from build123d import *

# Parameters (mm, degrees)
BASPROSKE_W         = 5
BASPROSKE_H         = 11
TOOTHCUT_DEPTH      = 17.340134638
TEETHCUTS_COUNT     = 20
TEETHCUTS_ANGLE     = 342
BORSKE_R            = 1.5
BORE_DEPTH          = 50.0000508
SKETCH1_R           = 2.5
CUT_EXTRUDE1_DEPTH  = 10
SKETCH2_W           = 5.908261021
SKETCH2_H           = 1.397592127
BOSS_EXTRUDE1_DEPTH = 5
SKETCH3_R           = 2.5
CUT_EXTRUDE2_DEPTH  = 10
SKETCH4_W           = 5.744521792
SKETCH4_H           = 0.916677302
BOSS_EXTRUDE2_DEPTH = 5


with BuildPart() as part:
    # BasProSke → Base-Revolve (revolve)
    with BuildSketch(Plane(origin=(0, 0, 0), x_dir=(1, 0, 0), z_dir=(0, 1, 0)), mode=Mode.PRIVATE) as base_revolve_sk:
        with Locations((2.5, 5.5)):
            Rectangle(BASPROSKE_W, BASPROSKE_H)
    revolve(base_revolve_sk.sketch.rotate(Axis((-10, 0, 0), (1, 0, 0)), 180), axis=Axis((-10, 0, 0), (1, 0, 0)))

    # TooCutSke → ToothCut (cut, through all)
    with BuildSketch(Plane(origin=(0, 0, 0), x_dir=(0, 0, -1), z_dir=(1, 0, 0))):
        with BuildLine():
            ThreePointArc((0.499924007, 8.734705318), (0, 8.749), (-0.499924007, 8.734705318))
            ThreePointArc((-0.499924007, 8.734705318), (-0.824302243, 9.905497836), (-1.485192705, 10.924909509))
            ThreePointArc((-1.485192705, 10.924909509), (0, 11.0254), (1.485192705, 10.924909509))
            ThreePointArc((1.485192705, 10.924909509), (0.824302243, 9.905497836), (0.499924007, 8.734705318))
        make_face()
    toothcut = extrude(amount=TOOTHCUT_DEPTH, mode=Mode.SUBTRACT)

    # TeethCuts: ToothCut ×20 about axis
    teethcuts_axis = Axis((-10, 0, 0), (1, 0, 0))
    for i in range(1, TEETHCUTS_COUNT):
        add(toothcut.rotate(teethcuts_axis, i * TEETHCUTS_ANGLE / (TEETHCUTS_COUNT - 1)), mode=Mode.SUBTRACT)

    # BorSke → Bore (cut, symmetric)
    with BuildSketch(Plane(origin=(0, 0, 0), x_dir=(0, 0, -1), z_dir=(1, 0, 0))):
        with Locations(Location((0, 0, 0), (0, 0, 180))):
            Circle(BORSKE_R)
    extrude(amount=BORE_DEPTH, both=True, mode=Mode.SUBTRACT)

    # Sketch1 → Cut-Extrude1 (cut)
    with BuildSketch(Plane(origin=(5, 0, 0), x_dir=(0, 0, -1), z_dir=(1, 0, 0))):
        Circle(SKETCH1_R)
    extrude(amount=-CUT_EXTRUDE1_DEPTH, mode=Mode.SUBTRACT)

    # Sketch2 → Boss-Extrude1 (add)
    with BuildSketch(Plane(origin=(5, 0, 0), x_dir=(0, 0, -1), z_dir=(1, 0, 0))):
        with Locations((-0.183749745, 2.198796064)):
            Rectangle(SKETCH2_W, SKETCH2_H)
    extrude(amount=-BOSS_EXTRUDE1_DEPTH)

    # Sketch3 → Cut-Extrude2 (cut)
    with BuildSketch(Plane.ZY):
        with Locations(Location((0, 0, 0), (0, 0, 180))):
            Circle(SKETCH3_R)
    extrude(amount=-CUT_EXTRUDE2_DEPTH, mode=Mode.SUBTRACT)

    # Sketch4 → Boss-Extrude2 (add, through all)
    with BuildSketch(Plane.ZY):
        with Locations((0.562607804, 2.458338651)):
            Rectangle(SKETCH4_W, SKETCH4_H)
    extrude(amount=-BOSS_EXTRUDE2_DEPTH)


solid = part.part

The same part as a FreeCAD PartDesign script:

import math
import FreeCAD as App
import Part
import Sketcher
from FreeCAD import Vector

doc = App.newDocument("Part")
body = doc.addObject("PartDesign::Body", "Body")

# Sketch on XZ plane
sketch1 = doc.addObject("Sketcher::SketchObject", "Sketch")
body.addObject(sketch1)
sketch1.AttachmentSupport = (doc.XZ_Plane, [""])
sketch1.MapMode = "FlatFace"
sketch1.addGeometry([
    Part.LineSegment(Vector(0, -11, 0), Vector(0, 0, 0)),
    Part.LineSegment(Vector(0, 0, 0), Vector(5, 0, 0)),
    Part.LineSegment(Vector(5, 0, 0), Vector(5, -11, 0)),
    Part.LineSegment(Vector(5, -11, 0), Vector(0, -11, 0)),
], False)
sketch1.addConstraint([
    Sketcher.Constraint("Coincident", 0, 2, 1, 1),
    Sketcher.Constraint("Coincident", 1, 2, 2, 1),
    Sketcher.Constraint("Coincident", 2, 2, 3, 1),
    Sketcher.Constraint("Coincident", 3, 2, 0, 1),
    Sketcher.Constraint("Vertical", 0),
    Sketcher.Constraint("Horizontal", 1),
    Sketcher.Constraint("Vertical", 2),
    Sketcher.Constraint("Horizontal", 3),
    Sketcher.Constraint("Coincident", 0, 2, -1, 1),
    Sketcher.Constraint("DistanceX", 1, 1, 1, 2, 5.0),
    Sketcher.Constraint("DistanceY", 0, 1, 0, 2, 11.0),
])
revolution = doc.addObject("PartDesign::Revolution", "Revolution")
body.addObject(revolution)
revolution.Profile = sketch1
revolution.ReferenceAxis = (sketch1, ["H_Axis"])
revolution.Angle = 360

# Sketch on YZ plane
sketch2 = doc.addObject("Sketcher::SketchObject", "Sketch001")
body.addObject(sketch2)
sketch2.AttachmentSupport = (doc.YZ_Plane, [""])
sketch2.MapMode = "FlatFace"
sketch2.addGeometry([
    Part.ArcOfCircle(Part.Circle(Vector(0, 0, 0), Vector(0, 0, 1), 8.749), math.radians(-3.275705), math.radians(3.275705)),
    Part.ArcOfCircle(Part.Circle(Vector(8.264487, -4.47219, 0), Vector(0, 0, 1), 4), math.radians(48.309566), math.radians(83.249005)),
    Part.ArcOfCircle(Part.Circle(Vector(0, 0, 0), Vector(0, 0, 1), 11.0254), math.radians(-7.741647), math.radians(7.741647)),
    Part.ArcOfCircle(Part.Circle(Vector(8.264487, 4.47219, 0), Vector(0, 0, 1), 4), math.radians(-83.249005), math.radians(-48.309566)),
], False)
sketch2.addConstraint([
    Sketcher.Constraint("Coincident", 0, 1, 1, 2),
    Sketcher.Constraint("Coincident", 1, 1, 2, 1),
    Sketcher.Constraint("Coincident", 2, 2, 3, 2),
    Sketcher.Constraint("Coincident", 3, 1, 0, 2),
    Sketcher.Constraint("Coincident", 0, 3, -1, 1),
    Sketcher.Constraint("Coincident", 2, 3, -1, 1),
    Sketcher.Constraint("Equal", 1, 3),
    Sketcher.Constraint("Symmetric", 1, 3, 3, 3, -1),
    Sketcher.Constraint("Radius", 1, 4.0),
    Sketcher.Constraint("Radius", 0, 8.749),
    Sketcher.Constraint("Radius", 2, 11.0254),
    Sketcher.Constraint("DistanceY", 1, 3, -1, 1, 4.47219),
    Sketcher.Constraint("DistanceX", -1, 1, 1, 1, 10.92491),
])
pocket1 = doc.addObject("PartDesign::Pocket", "Pocket")
body.addObject(pocket1)
pocket1.Profile = sketch2
pocket1.Type = "ThroughAll"
pocket1.Reversed = True
doc.recompute()

polarpattern = doc.addObject("PartDesign::PolarPattern", "PolarPattern")
body.addObject(polarpattern)
polarpattern.Originals = [pocket1]
polarpattern.Axis = (doc.X_Axis, [""])
polarpattern.Angle = 360
polarpattern.Occurrences = 20
body.Tip = polarpattern

# Sketch on YZ plane
sketch3 = doc.addObject("Sketcher::SketchObject", "Sketch002")
body.addObject(sketch3)
sketch3.AttachmentSupport = (doc.YZ_Plane, [""])
sketch3.MapMode = "FlatFace"
sketch3.addGeometry(Part.Circle(Vector(0, 0, 0), Vector(0, 0, 1), 1.5), False)
sketch3.addConstraint([
    Sketcher.Constraint("Coincident", 0, 3, -1, 1),
    Sketcher.Constraint("Diameter", 0, 3.0),
])
pocket2 = doc.addObject("PartDesign::Pocket", "Pocket001")
body.addObject(pocket2)
pocket2.Profile = sketch3
pocket2.Length = 100.000102
pocket2.Midplane = True

# Sketch on YZ plane
sketch4 = doc.addObject("Sketcher::SketchObject", "Sketch003")
body.addObject(sketch4)
sketch4.AttachmentSupport = (doc.YZ_Plane, [""])
sketch4.MapMode = "FlatFace"
sketch4.AttachmentOffset = App.Placement(Vector(0, 0, 5), App.Rotation())
sketch4.addGeometry(Part.Circle(Vector(0, 0, 0), Vector(0, 0, 1), 2.5), False)
sketch4.addConstraint([
    Sketcher.Constraint("Coincident", 0, 3, -1, 1),
    Sketcher.Constraint("Diameter", 0, 5.0),
])
pocket3 = doc.addObject("PartDesign::Pocket", "Pocket002")
body.addObject(pocket3)
pocket3.Profile = sketch4
pocket3.Length = 10

# Sketch on YZ plane
sketch5 = doc.addObject("Sketcher::SketchObject", "Sketch004")
body.addObject(sketch5)
sketch5.AttachmentSupport = (doc.YZ_Plane, [""])
sketch5.MapMode = "FlatFace"
sketch5.AttachmentOffset = App.Placement(Vector(0, 0, 5), App.Rotation())
sketch5.addGeometry([
    Part.LineSegment(Vector(2.897592, 3.13788, 0), Vector(1.5, 3.13788, 0)),
    Part.LineSegment(Vector(1.5, 3.13788, 0), Vector(1.5, -2.770381, 0)),
    Part.LineSegment(Vector(1.5, -2.770381, 0), Vector(2.897592, -2.770381, 0)),
    Part.LineSegment(Vector(2.897592, -2.770381, 0), Vector(2.897592, 3.13788, 0)),
], False)
sketch5.addConstraint([
    Sketcher.Constraint("Coincident", 0, 2, 1, 1),
    Sketcher.Constraint("Coincident", 1, 2, 2, 1),
    Sketcher.Constraint("Coincident", 2, 2, 3, 1),
    Sketcher.Constraint("Coincident", 3, 2, 0, 1),
    Sketcher.Constraint("Horizontal", 0),
    Sketcher.Constraint("Vertical", 1),
    Sketcher.Constraint("Horizontal", 2),
    Sketcher.Constraint("Vertical", 3),
    Sketcher.Constraint("DistanceX", -1, 1, 0, 2, 1.5),
    Sketcher.Constraint("DistanceY", 1, 2, 1, 1, 5.908261),
    Sketcher.Constraint("DistanceX", 0, 2, 0, 1, 1.397592),
    Sketcher.Constraint("DistanceY", -1, 1, 0, 2, 3.13788),
])
pad1 = doc.addObject("PartDesign::Pad", "Pad")
body.addObject(pad1)
pad1.Profile = sketch5
pad1.Length = 5
pad1.Reversed = True

# Sketch on YZ plane
sketch6 = doc.addObject("Sketcher::SketchObject", "Sketch005")
body.addObject(sketch6)
sketch6.AttachmentSupport = (doc.YZ_Plane, [""])
sketch6.MapMode = "FlatFace"
sketch6.addGeometry(Part.Circle(Vector(0, 0, 0), Vector(0, 0, 1), 2.5), False)
sketch6.addConstraint([
    Sketcher.Constraint("Coincident", 0, 3, -1, 1),
    Sketcher.Constraint("Diameter", 0, 5.0),
])
pocket4 = doc.addObject("PartDesign::Pocket", "Pocket003")
body.addObject(pocket4)
pocket4.Profile = sketch6
pocket4.Length = 10
pocket4.Reversed = True

# Sketch on YZ plane
sketch7 = doc.addObject("Sketcher::SketchObject", "Sketch006")
body.addObject(sketch7)
sketch7.AttachmentSupport = (doc.YZ_Plane, [""])
sketch7.MapMode = "FlatFace"
sketch7.addGeometry([
    Part.LineSegment(Vector(2.916677, -2.309653, 0), Vector(2, -2.309653, 0)),
    Part.LineSegment(Vector(2, -2.309653, 0), Vector(2, 3.434869, 0)),
    Part.LineSegment(Vector(2, 3.434869, 0), Vector(2.916677, 3.434869, 0)),
    Part.LineSegment(Vector(2.916677, 3.434869, 0), Vector(2.916677, -2.309653, 0)),
], False)
sketch7.addConstraint([
    Sketcher.Constraint("Coincident", 0, 2, 1, 1),
    Sketcher.Constraint("Coincident", 1, 2, 2, 1),
    Sketcher.Constraint("Coincident", 2, 2, 3, 1),
    Sketcher.Constraint("Coincident", 3, 2, 0, 1),
    Sketcher.Constraint("Horizontal", 0),
    Sketcher.Constraint("Vertical", 1),
    Sketcher.Constraint("Horizontal", 2),
    Sketcher.Constraint("Vertical", 3),
    Sketcher.Constraint("DistanceX", -1, 1, 0, 2, 2.0),
    Sketcher.Constraint("DistanceY", 1, 1, 1, 2, 5.744522),
    Sketcher.Constraint("DistanceX", 0, 2, 0, 1, 0.916677),
    Sketcher.Constraint("DistanceY", -1, 1, 1, 2, 3.434869),
])
pad2 = doc.addObject("PartDesign::Pad", "Pad001")
body.addObject(pad2)
pad2.Profile = sketch7
pad2.Type = "UpToLast"

doc.recompute()
